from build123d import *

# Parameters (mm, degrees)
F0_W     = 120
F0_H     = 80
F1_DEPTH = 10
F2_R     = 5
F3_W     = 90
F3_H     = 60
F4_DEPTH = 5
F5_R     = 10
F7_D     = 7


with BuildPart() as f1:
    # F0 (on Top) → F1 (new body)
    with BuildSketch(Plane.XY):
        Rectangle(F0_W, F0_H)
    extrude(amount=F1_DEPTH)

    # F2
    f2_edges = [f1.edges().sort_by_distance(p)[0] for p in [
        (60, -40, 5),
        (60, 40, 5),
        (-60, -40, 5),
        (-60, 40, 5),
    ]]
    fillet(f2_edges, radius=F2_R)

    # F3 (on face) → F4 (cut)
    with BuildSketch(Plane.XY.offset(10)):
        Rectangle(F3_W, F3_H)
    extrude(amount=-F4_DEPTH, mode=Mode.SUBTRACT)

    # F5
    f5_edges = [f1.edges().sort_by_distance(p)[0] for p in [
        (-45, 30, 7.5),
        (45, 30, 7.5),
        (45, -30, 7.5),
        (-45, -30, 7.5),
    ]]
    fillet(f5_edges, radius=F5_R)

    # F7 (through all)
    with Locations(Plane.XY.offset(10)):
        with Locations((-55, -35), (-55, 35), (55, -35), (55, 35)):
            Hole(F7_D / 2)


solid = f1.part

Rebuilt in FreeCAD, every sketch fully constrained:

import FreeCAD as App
import Part
import Sketcher
Q = App.Units.Quantity


def edges_at(feature, points):
    """Names of the edges that pass closest to the given points."""
    edges = feature.Shape.Edges
    near = lambda p: min(range(len(edges)), key=lambda i: edges[i].distToShape(Part.Vertex(*p))[0])
    return sorted({f"Edge{near(p) + 1}" for p in points})

doc = App.newDocument("Part")
params = doc.addObject("Spreadsheet::Sheet", "Params")
for row, (alias, value) in enumerate([
    ("sketch1_width", "120 mm"),
    ("sketch1_height", "80 mm"),
    ("pad1_length", "10 mm"),
    ("fillet_radius", "5 mm"),
    ("sketch2_width", "90 mm"),
    ("sketch2_height", "60 mm"),
    ("pocket1_length", "5 mm"),
    ("fillet2_radius", "10 mm"),
    ("sketch3_diameter", "7 mm"),
    ("hole_diameter", "7 mm"),
], start=1):
    params.set(f"A{row}", alias)
    params.set(f"B{row}", "=" + value)
    params.setAlias(f"B{row}", alias)

body = doc.addObject("PartDesign::Body", "Body")

sketch1 = doc.addObject("Sketcher::SketchObject", "Sketch")
body.addObject(sketch1)
sketch1.AttachmentSupport = (doc.XY_Plane, [""])
sketch1.MapMode = "FlatFace"
sketch1.addGeometry(Part.LineSegment(App.Vector(-60, 40, 0), App.Vector(-60, -40, 0)), False)
sketch1.addGeometry(Part.LineSegment(App.Vector(-60, -40, 0), App.Vector(60, -40, 0)), False)
sketch1.addGeometry(Part.LineSegment(App.Vector(60, -40, 0), App.Vector(60, 40, 0)), False)
sketch1.addGeometry(Part.LineSegment(App.Vector(60, 40, 0), App.Vector(-60, 40, 0)), False)
sketch1.addConstraint(Sketcher.Constraint("Coincident", 0, 2, 1, 1))
sketch1.addConstraint(Sketcher.Constraint("Coincident", 1, 2, 2, 1))
sketch1.addConstraint(Sketcher.Constraint("Coincident", 2, 2, 3, 1))
sketch1.addConstraint(Sketcher.Constraint("Coincident", 3, 2, 0, 1))
sketch1.addConstraint(Sketcher.Constraint("Vertical", 0))
sketch1.addConstraint(Sketcher.Constraint("Horizontal", 1))
sketch1.addConstraint(Sketcher.Constraint("Vertical", 2))
sketch1.addConstraint(Sketcher.Constraint("Horizontal", 3))
sketch1.addConstraint(Sketcher.Constraint("Symmetric", 0, 2, 2, 2, -1, 1))
sketch1.addConstraint(Sketcher.Constraint("DistanceX", 1, 1, 1, 2, Q("120 mm")))
sketch1.addConstraint(Sketcher.Constraint("DistanceY", 0, 2, 0, 1, Q("80 mm")))
sketch1.setExpression("Constraints[9]", "Params.sketch1_width")
sketch1.setExpression("Constraints[10]", "Params.sketch1_height")
pad1 = doc.addObject("PartDesign::Pad", "Pad")
body.addObject(pad1)
pad1.Profile = sketch1
pad1.setExpression("Length", "Params.pad1_length")
doc.recompute()

fillet = doc.addObject("PartDesign::Fillet", "Fillet")
body.addObject(fillet)
fillet.Base = (pad1, edges_at(pad1, [
    (60, -40, 5),
    (60, 40, 5),
    (-60, -40, 5),
    (-60, 40, 5),
]))
fillet.setExpression("Radius", "Params.fillet_radius")

sketch2 = doc.addObject("Sketcher::SketchObject", "Sketch001")
body.addObject(sketch2)
sketch2.AttachmentSupport = (doc.XY_Plane, [""])
sketch2.MapMode = "FlatFace"
sketch2.AttachmentOffset = App.Placement(App.Vector(0, 0, 10), App.Rotation())
sketch2.addGeometry(Part.LineSegment(App.Vector(-45, 30, 0), App.Vector(-45, -30, 0)), False)
sketch2.addGeometry(Part.LineSegment(App.Vector(-45, -30, 0), App.Vector(45, -30, 0)), False)
sketch2.addGeometry(Part.LineSegment(App.Vector(45, -30, 0), App.Vector(45, 30, 0)), False)
sketch2.addGeometry(Part.LineSegment(App.Vector(45, 30, 0), App.Vector(-45, 30, 0)), False)
sketch2.addConstraint(Sketcher.Constraint("Coincident", 0, 2, 1, 1))
sketch2.addConstraint(Sketcher.Constraint("Coincident", 1, 2, 2, 1))
sketch2.addConstraint(Sketcher.Constraint("Coincident", 2, 2, 3, 1))
sketch2.addConstraint(Sketcher.Constraint("Coincident", 3, 2, 0, 1))
sketch2.addConstraint(Sketcher.Constraint("Vertical", 0))
sketch2.addConstraint(Sketcher.Constraint("Horizontal", 1))
sketch2.addConstraint(Sketcher.Constraint("Vertical", 2))
sketch2.addConstraint(Sketcher.Constraint("Horizontal", 3))
sketch2.addConstraint(Sketcher.Constraint("Symmetric", 0, 2, 2, 2, -1, 1))
sketch2.addConstraint(Sketcher.Constraint("DistanceX", 1, 1, 1, 2, Q("90 mm")))
sketch2.addConstraint(Sketcher.Constraint("DistanceY", 0, 2, 0, 1, Q("60 mm")))
sketch2.setExpression("Constraints[9]", "Params.sketch2_width")
sketch2.setExpression("Constraints[10]", "Params.sketch2_height")
pocket1 = doc.addObject("PartDesign::Pocket", "Pocket")
body.addObject(pocket1)
pocket1.Profile = sketch2
pocket1.setExpression("Length", "Params.pocket1_length")
doc.recompute()

fillet2 = doc.addObject("PartDesign::Fillet", "Fillet001")
body.addObject(fillet2)
fillet2.Base = (pocket1, edges_at(pocket1, [
    (-45, 30, 7.5),
    (45, 30, 7.5),
    (45, -30, 7.5),
    (-45, -30, 7.5),
]))
fillet2.setExpression("Radius", "Params.fillet2_radius")

sketch3 = doc.addObject("Sketcher::SketchObject", "Sketch002")
body.addObject(sketch3)
sketch3.AttachmentSupport = (doc.XY_Plane, [""])
sketch3.MapMode = "FlatFace"
sketch3.AttachmentOffset = App.Placement(App.Vector(0, 0, 10), App.Rotation())
sketch3.addGeometry(Part.Circle(App.Vector(-55, -35, 0), App.Vector(0, 0, 1), 3.5), False)
sketch3.addGeometry(Part.Circle(App.Vector(-55, 35, 0), App.Vector(0, 0, 1), 3.5), False)
sketch3.addGeometry(Part.Circle(App.Vector(55, -35, 0), App.Vector(0, 0, 1), 3.5), False)
sketch3.addGeometry(Part.Circle(App.Vector(55, 35, 0), App.Vector(0, 0, 1), 3.5), False)
sketch3.addConstraint(Sketcher.Constraint("Equal", 0, 1))
sketch3.addConstraint(Sketcher.Constraint("Equal", 1, 2))
sketch3.addConstraint(Sketcher.Constraint("Equal", 2, 3))
sketch3.addConstraint(Sketcher.Constraint("Symmetric", 1, 3, 2, 3, -1, 1))
sketch3.addConstraint(Sketcher.Constraint("Symmetric", 0, 3, 3, 3, -1, 1))
sketch3.addConstraint(Sketcher.Constraint("Symmetric", 0, 3, 2, 3, -2))
sketch3.addConstraint(Sketcher.Constraint("Diameter", 0, Q("7 mm")))
sketch3.addConstraint(Sketcher.Constraint("DistanceX", 0, 3, -1, 1, Q("55 mm")))
sketch3.addConstraint(Sketcher.Constraint("DistanceY", 0, 3, -1, 1, Q("35 mm")))
sketch3.setExpression("Constraints[6]", "Params.sketch3_diameter")
doc.recompute()
hole = doc.addObject("PartDesign::Hole", "Hole")
body.addObject(hole)
hole.Profile = sketch3
hole.ThreadType = "None"
hole.setExpression("Diameter", "Params.hole_diameter")
hole.DepthType = "ThroughAll"

doc.recompute()
